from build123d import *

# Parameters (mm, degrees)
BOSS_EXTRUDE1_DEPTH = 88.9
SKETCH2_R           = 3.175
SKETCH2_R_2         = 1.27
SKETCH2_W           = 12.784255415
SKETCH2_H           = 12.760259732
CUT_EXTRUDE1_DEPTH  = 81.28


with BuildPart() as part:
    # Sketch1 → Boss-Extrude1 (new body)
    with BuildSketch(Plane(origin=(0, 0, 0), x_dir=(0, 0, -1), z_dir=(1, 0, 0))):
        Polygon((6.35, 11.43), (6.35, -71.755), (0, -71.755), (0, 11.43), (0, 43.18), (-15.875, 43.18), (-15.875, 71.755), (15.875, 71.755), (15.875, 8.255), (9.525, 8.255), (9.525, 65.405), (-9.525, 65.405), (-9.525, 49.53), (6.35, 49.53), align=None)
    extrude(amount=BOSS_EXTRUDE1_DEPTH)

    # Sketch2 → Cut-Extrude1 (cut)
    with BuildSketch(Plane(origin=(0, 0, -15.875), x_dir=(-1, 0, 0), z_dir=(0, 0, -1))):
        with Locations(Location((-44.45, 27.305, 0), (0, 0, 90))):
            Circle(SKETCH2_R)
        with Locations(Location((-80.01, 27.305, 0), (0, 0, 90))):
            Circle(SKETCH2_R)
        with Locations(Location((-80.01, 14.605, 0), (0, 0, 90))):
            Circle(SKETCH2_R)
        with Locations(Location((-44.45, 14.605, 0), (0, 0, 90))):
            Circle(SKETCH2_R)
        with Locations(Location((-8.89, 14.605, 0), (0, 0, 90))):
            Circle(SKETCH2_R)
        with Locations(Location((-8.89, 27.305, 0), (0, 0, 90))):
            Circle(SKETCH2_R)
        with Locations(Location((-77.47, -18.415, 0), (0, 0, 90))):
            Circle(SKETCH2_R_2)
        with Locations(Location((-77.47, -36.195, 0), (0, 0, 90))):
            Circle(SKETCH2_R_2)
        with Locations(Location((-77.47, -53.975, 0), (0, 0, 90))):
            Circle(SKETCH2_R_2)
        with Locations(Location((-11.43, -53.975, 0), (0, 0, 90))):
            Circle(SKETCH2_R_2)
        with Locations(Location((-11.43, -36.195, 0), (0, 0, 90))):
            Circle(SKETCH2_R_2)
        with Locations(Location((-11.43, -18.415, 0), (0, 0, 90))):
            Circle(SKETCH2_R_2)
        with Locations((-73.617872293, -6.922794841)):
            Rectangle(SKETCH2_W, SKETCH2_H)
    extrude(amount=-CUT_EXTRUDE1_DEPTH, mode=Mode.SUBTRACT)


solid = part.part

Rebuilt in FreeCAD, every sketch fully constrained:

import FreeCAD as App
import Part
import Sketcher
Q = App.Units.Quantity

doc = App.newDocument("Part")
body = doc.addObject("PartDesign::Body", "Body")

# Sketch on YZ plane
sketch1 = doc.addObject("Sketcher::SketchObject", "Sketch")
body.addObject(sketch1)
sketch1.AttachmentSupport = (doc.YZ_Plane, [""])
sketch1.MapMode = "FlatFace"
sketch1.addGeometry([
    Part.LineSegment(App.Vector(-72, -6, 0), App.Vector(50, -6, 0)),  # 0
    Part.LineSegment(App.Vector(50, -6, 0), App.Vector(50, 10, 0)),  # 1
    Part.LineSegment(App.Vector(50, 10, 0), App.Vector(65, 10, 0)),  # 2
    Part.LineSegment(App.Vector(65, 10, 0), App.Vector(65, -10, 0)),  # 3
    Part.LineSegment(App.Vector(65, -10, 0), App.Vector(8, -10, 0)),  # 4
    Part.LineSegment(App.Vector(8, -10, 0), App.Vector(8, -16, 0)),  # 5
    Part.LineSegment(App.Vector(8, -16, 0), App.Vector(72, -16, 0)),  # 6
    Part.LineSegment(App.Vector(72, -16, 0), App.Vector(72, 16, 0)),  # 7
    Part.LineSegment(App.Vector(72, 16, 0), App.Vector(43, 16, 0)),  # 8
    Part.LineSegment(App.Vector(43, 16, 0), App.Vector(43, 0, 0)),  # 9
    Part.LineSegment(App.Vector(43, 0, 0), App.Vector(-72, 0, 0)),  # 10
    Part.LineSegment(App.Vector(-72, 0, 0), App.Vector(-72, -6, 0)),  # 11
], False)
sketch1.addConstraint([
    Sketcher.Constraint("Coincident", 0, 2, 1, 1),
    Sketcher.Constraint("Coincident", 1, 2, 2, 1),
    Sketcher.Constraint("Coincident", 2, 2, 3, 1),
    Sketcher.Constraint("Coincident", 3, 2, 4, 1),
    Sketcher.Constraint("Coincident", 4, 2, 5, 1),
    Sketcher.Constraint("Coincident", 5, 2, 6, 1),
    Sketcher.Constraint("Coincident", 6, 2, 7, 1),
    Sketcher.Constraint("Coincident", 7, 2, 8, 1),
    Sketcher.Constraint("Coincident", 8, 2, 9, 1),
    Sketcher.Constraint("Coincident", 9, 2, 10, 1),
    Sketcher.Constraint("Coincident", 10, 2, 11, 1),
    Sketcher.Constraint("Coincident", 11, 2, 0, 1),
    Sketcher.Constraint("Horizontal", 0),
    Sketcher.Constraint("Vertical", 1),
    Sketcher.Constraint("Horizontal", 2),
    Sketcher.Constraint("Vertical", 3),
    Sketcher.Constraint("Horizontal", 4),
    Sketcher.Constraint("Vertical", 5),
    Sketcher.Constraint("Horizontal", 6),
    Sketcher.Constraint("Vertical", 7),
    Sketcher.Constraint("Horizontal", 8),
    Sketcher.Constraint("Vertical", 9),
    Sketcher.Constraint("Horizontal", 10),
    Sketcher.Constraint("Vertical", 11),
    Sketcher.Constraint("PointOnObject", 9, 2, -1),
    Sketcher.Constraint("Equal", 2, 1),
    Sketcher.Constraint("Equal", 1, 9),
    Sketcher.Constraint("Equal", 5, 11),
    Sketcher.Constraint("DistanceX", 6, 1, 6, 2, Q("2.5 in")),
    Sketcher.Constraint("DistanceY", 5, 2, 1, 2, Q("1 in")),
    Sketcher.Constraint("DistanceX", 4, 2, 4, 1, Q("2.25 in")),
    Sketcher.Constraint("DistanceY", 3, 2, 3, 1, Q("0.75 in")),
    Sketcher.Constraint("DistanceX", -1, 1, 8, 2, Q("1.7 in")),
    Sketcher.Constraint("DistanceX", 0, 1, 0, 2, Q("4.775 in")),
    Sketcher.Constraint("DistanceX", 2, 1, 2, 2, Q("0.625 in")),
    Sketcher.Constraint("DistanceX", 8, 2, 8, 1, Q("1.125 in")),
])
pad1 = doc.addObject("PartDesign::Pad", "Pad")
body.addObject(pad1)
pad1.Profile = sketch1
pad1.Length = Q("3.5 in")

# Sketch on XY plane
sketch2 = doc.addObject("Sketcher::SketchObject", "Sketch001")
body.addObject(sketch2)
sketch2.AttachmentSupport = (doc.XY_Plane, [""])
sketch2.MapMode = "FlatFace"
sketch2.AttachmentOffset = App.Placement(App.Vector(0, 0, -0.625 * 25.4), App.Rotation())
sketch2.addGeometry([
    Part.Circle(App.Vector(44.5, 27.3, 0), App.Vector(0, 0, 1), 3.2),  # 0
    Part.Circle(App.Vector(80, 27.3, 0), App.Vector(0, 0, 1), 3.2),  # 1
    Part.Circle(App.Vector(80, 14.6, 0), App.Vector(0, 0, 1), 3.2),  # 2
    Part.Circle(App.Vector(44.5, 14.6, 0), App.Vector(0, 0, 1), 3.2),  # 3
    Part.Circle(App.Vector(8.9, 14.6, 0), App.Vector(0, 0, 1), 3.2),  # 4
    Part.Circle(App.Vector(8.9, 27.3, 0), App.Vector(0, 0, 1), 3.2),  # 5
    Part.Circle(App.Vector(77.5, -18.4, 0), App.Vector(0, 0, 1), 1.3),  # 6
    Part.Circle(App.Vector(77.5, -36.2, 0), App.Vector(0, 0, 1), 1.3),  # 7
    Part.Circle(App.Vector(77.5, -54, 0), App.Vector(0, 0, 1), 1.3),  # 8
    Part.Circle(App.Vector(11.4, -54, 0), App.Vector(0, 0, 1), 1.3),  # 9
    Part.Circle(App.Vector(11.4, -36.2, 0), App.Vector(0, 0, 1), 1.3),  # 10
    Part.Circle(App.Vector(11.4, -18.4, 0), App.Vector(0, 0, 1), 1.3),  # 11
    Part.LineSegment(App.Vector(80, -0.5, 0), App.Vector(80, -13.3, 0)),  # 12
    Part.LineSegment(App.Vector(80, -13.3, 0), App.Vector(67.2, -13.3, 0)),  # 13
    Part.LineSegment(App.Vector(67.2, -13.3, 0), App.Vector(67.2, -0.5, 0)),  # 14
    Part.LineSegment(App.Vector(67.2, -0.5, 0), App.Vector(80, -0.5, 0)),  # 15
], False)
sketch2.addConstraint([
    Sketcher.Constraint("Coincident", 12, 2, 13, 1),
    Sketcher.Constraint("Coincident", 13, 2, 14, 1),
    Sketcher.Constraint("Coincident", 14, 2, 15, 1),
    Sketcher.Constraint("Coincident", 15, 2, 12, 1),
    Sketcher.Constraint("Vertical", 12),
    Sketcher.Constraint("Horizontal", 13),
    Sketcher.Constraint("Vertical", 14),
    Sketcher.Constraint("Horizontal", 15),
    Sketcher.Constraint("Equal", 0, 1),
    Sketcher.Constraint("Equal", 1, 2),
    Sketcher.Constraint("Equal", 2, 3),
    Sketcher.Constraint("Equal", 3, 4),
    Sketcher.Constraint("Equal", 4, 5),
    Sketcher.Constraint("Equal", 6, 7),
    Sketcher.Constraint("Equal", 7, 8),
    Sketcher.Constraint("Equal", 8, 9),
    Sketcher.Constraint("Equal", 9, 10),
    Sketcher.Constraint("Equal", 10, 11),
    Sketcher.Constraint("Horizontal", 0, 3, 1, 3),
    Sketcher.Constraint("Horizontal", 2, 3, 3, 3),
    Sketcher.Constraint("Horizontal", 3, 3, 4, 3),
    Sketcher.Constraint("Horizontal", 1, 3, 5, 3),
    Sketcher.Constraint("Horizontal", 8, 3, 9, 3),
    Sketcher.Constraint("Horizontal", 7, 3, 10, 3),
    Sketcher.Constraint("Horizontal", 6, 3, 11, 3),
    Sketcher.Constraint("Vertical", 1, 3, 2, 3),
    Sketcher.Constraint("Vertical", 0, 3, 3, 3),
    Sketcher.Constraint("Vertical", 4, 3, 5, 3),
    Sketcher.Constraint("Vertical", 6, 3, 7, 3),
    Sketcher.Constraint("Vertical", 7, 3, 8, 3),
    Sketcher.Constraint("Vertical", 9, 3, 10, 3),
    Sketcher.Constraint("Vertical", 10, 3, 11, 3),
    Sketcher.Constraint("Vertical", 2, 3, 12, 2),
    Sketcher.Constraint("Diameter", 6, Q("0.1 in")),
    Sketcher.Constraint("Diameter", 0, Q("0.25 in")),
    Sketcher.Constraint("DistanceY", 7, 3, 2, 3, Q("2 in")),
    Sketcher.Constraint("DistanceX", 0, 3, 1, 3, Q("1.4 in")),
    Sketcher.Constraint("DistanceY", 2, 3, 1, 3, Q("0.5 in")),
    Sketcher.Constraint("DistanceX", 4, 3, 3, 3, Q("1.4 in")),
    Sketcher.Constraint("DistanceX", 6, 3, 2, 3, Q("0.1 in")),
    Sketcher.Constraint("DistanceY", 6, 3, 2, 3, Q("1.3 in")),
    Sketcher.Constraint("DistanceY", 8, 3, 7, 3, Q("0.7 in")),
    Sketcher.Constraint("DistanceX", 9, 3, 8, 3, Q("2.6 in")),
    Sketcher.Constraint("DistanceX", -1, 1, 0, 3, Q("1.75 in")),
    Sketcher.Constraint("DistanceY", -1, 1, 0, 3, Q("1.075 in")),
    Sketcher.Constraint("DistanceY", 12, 2, 12, 1, Q("12.76026 mm")),
    Sketcher.Constraint("DistanceX", 13, 2, 13, 1, Q("12.784255 mm")),
    Sketcher.Constraint("DistanceY", 12, 2, -1, 1, Q("13.302925 mm")),
])
pocket1 = doc.addObject("PartDesign::Pocket", "Pocket")
body.addObject(pocket1)
pocket1.Profile = sketch2
pocket1.Length = Q("3.2 in")
pocket1.Reversed = True

doc.recompute()
